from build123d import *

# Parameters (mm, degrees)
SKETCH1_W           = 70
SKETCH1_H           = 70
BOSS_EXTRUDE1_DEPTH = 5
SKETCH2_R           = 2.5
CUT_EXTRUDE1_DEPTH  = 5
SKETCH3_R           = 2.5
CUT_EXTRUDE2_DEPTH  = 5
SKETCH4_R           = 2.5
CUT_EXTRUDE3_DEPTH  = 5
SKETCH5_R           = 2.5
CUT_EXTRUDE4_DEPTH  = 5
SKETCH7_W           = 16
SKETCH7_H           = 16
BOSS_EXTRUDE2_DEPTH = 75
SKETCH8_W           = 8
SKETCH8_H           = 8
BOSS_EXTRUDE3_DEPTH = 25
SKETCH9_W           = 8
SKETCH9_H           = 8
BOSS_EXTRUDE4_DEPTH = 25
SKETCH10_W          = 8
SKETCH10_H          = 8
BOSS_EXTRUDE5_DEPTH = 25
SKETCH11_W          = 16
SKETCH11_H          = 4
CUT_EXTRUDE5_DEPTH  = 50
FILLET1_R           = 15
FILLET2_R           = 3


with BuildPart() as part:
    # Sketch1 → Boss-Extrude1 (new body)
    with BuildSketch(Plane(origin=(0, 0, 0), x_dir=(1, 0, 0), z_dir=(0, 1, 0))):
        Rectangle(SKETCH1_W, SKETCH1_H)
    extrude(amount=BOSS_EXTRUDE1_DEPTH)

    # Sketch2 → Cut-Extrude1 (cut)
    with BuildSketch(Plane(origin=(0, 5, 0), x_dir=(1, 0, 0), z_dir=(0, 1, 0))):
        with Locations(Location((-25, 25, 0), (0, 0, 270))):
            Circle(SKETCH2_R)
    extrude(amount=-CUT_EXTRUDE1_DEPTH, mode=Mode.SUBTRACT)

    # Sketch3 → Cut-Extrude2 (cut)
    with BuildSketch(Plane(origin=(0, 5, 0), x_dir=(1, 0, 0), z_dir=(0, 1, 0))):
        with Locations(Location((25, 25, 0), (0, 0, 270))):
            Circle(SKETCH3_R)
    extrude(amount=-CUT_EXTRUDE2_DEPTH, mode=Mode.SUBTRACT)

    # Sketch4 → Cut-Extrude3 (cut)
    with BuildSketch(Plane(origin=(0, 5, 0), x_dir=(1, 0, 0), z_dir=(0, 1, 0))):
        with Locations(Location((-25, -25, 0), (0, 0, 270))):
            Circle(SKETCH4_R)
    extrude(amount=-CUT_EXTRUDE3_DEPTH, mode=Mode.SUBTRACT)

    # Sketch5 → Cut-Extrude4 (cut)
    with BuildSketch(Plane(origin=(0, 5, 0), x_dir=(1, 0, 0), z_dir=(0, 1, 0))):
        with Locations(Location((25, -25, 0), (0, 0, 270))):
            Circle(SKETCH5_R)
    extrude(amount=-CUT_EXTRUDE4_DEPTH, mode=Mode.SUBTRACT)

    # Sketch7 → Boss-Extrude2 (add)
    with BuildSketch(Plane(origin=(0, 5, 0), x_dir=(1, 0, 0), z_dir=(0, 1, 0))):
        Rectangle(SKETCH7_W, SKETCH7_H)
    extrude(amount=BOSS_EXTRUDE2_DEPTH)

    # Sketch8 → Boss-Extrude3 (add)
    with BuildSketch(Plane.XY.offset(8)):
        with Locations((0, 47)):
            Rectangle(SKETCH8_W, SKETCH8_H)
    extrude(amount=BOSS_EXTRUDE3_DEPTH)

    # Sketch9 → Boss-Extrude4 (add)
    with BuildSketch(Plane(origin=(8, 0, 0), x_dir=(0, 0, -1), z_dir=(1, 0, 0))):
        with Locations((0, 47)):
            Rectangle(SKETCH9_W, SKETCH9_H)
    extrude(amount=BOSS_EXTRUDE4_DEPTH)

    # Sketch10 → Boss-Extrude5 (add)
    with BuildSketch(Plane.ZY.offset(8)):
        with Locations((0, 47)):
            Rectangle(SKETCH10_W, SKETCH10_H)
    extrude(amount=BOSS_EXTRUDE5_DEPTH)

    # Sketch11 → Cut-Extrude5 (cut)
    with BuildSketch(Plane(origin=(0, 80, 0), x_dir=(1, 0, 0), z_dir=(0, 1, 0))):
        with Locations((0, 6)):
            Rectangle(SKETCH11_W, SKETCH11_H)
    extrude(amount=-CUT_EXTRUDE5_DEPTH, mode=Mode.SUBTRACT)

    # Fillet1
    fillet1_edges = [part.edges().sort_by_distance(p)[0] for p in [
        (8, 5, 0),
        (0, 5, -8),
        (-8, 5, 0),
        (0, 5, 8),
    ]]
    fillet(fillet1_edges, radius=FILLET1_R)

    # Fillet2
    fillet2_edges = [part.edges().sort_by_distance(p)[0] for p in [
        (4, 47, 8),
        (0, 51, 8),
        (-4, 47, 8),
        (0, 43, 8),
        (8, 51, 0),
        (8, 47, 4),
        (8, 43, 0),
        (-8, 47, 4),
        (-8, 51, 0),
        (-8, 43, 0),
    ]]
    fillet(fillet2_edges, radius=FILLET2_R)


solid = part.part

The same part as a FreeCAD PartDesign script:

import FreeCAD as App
import Part
import Sketcher

V = App.Vector
Q = App.Units.Quantity


def edges_at(feature, points):
    """Names of the edges that pass closest to the given points."""
    edges = feature.Shape.Edges
    near = lambda p: min(range(len(edges)), key=lambda i: edges[i].distToShape(Part.Vertex(*p))[0])
    return sorted({f"Edge{near(p) + 1}" for p in points})


def add_polygon(sketch, points):
    """Adds a closed chain of lines whose ends are joined by coincident constraints."""
    first, n = sketch.GeometryCount, len(points)
    for a, b in zip(points, points[1:] + points[:1]):
        sketch.addGeometry(Part.LineSegment(App.Vector(*a, 0), App.Vector(*b, 0)), False)
    for i in range(n):
        sketch.addConstraint(Sketcher.Constraint("Coincident", first + i, 2, first + (i + 1) % n, 1))

doc = App.newDocument("Part")
body = doc.addObject("PartDesign::Body", "Body")

sketch1 = doc.addObject("Sketcher::SketchObject", "Sketch")
body.addObject(sketch1)
sketch1.AttachmentSupport = (doc.XZ_Plane, [""])
sketch1.MapMode = "FlatFace"
add_polygon(sketch1, [(-35, -35), (-35, 35), (35, 35), (35, -35)])
sketch1.addConstraint([
    Sketcher.Constraint("Vertical", 0),
    Sketcher.Constraint("Horizontal", 1),
    Sketcher.Constraint("Vertical", 2),
    Sketcher.Constraint("Horizontal", 3),
    Sketcher.Constraint("Symmetric", 0, 2, 2, 2, -1, 1),
    Sketcher.Constraint("Equal", 3, 0),
    Sketcher.Constraint("DistanceX", 1, 1, 1, 2, Q("70 mm")),
])
pad1 = doc.addObject("PartDesign::Pad", "Pad")
body.addObject(pad1)
pad1.Profile = sketch1
pad1.Length = 5
pad1.Reversed = True

sketch2 = doc.addObject("Sketcher::SketchObject", "Sketch001")
body.addObject(sketch2)
sketch2.AttachmentSupport = (doc.XZ_Plane, [""])
sketch2.MapMode = "FlatFace"
sketch2.AttachmentOffset = App.Placement(V(0, 0, -5), App.Rotation())
sketch2.addGeometry(Part.Circle(V(-25, -25, 0), V(0, 0, 1), 2.5), False)
sketch2.addConstraint([
    Sketcher.Constraint("Diameter", 0, Q("5 mm")),
    Sketcher.Constraint("DistanceX", 0, 3, -1, 1, Q("25 mm")),
    Sketcher.Constraint("DistanceY", 0, 3, -1, 1, Q("25 mm")),
])
pocket1 = doc.addObject("PartDesign::Pocket", "Pocket")
body.addObject(pocket1)
pocket1.Profile = sketch2
pocket1.Length = 5
pocket1.Reversed = True

sketch3 = doc.addObject("Sketcher::SketchObject", "Sketch002")
body.addObject(sketch3)
sketch3.AttachmentSupport = (doc.XZ_Plane, [""])
sketch3.MapMode = "FlatFace"
sketch3.AttachmentOffset = App.Placement(V(0, 0, -5), App.Rotation())
sketch3.addGeometry(Part.Circle(V(25, -25, 0), V(0, 0, 1), 2.5), False)
sketch3.addConstraint([
    Sketcher.Constraint("Diameter", 0, Q("5 mm")),
    Sketcher.Constraint("DistanceX", -1, 1, 0, 3, Q("25 mm")),
    Sketcher.Constraint("DistanceY", 0, 3, -1, 1, Q("25 mm")),
])
pocket2 = doc.addObject("PartDesign::Pocket", "Pocket001")
body.addObject(pocket2)
pocket2.Profile = sketch3
pocket2.Length = 5
pocket2.Reversed = True

sketch4 = doc.addObject("Sketcher::SketchObject", "Sketch003")
body.addObject(sketch4)
sketch4.AttachmentSupport = (doc.XZ_Plane, [""])
sketch4.MapMode = "FlatFace"
sketch4.AttachmentOffset = App.Placement(V(0, 0, -5), App.Rotation())
sketch4.addGeometry(Part.Circle(V(-25, 25, 0), V(0, 0, 1), 2.5), False)
sketch4.addConstraint([
    Sketcher.Constraint("Diameter", 0, Q("5 mm")),
    Sketcher.Constraint("DistanceX", 0, 3, -1, 1, Q("25 mm")),
    Sketcher.Constraint("DistanceY", -1, 1, 0, 3, Q("25 mm")),
])
pocket3 = doc.addObject("PartDesign::Pocket", "Pocket002")
body.addObject(pocket3)
pocket3.Profile = sketch4
pocket3.Length = 5
pocket3.Reversed = True

sketch5 = doc.addObject("Sketcher::SketchObject", "Sketch004")
body.addObject(sketch5)
sketch5.AttachmentSupport = (doc.XZ_Plane, [""])
sketch5.MapMode = "FlatFace"
sketch5.AttachmentOffset = App.Placement(V(0, 0, -5), App.Rotation())
sketch5.addGeometry(Part.Circle(V(25, 25, 0), V(0, 0, 1), 2.5), False)
sketch5.addConstraint([
    Sketcher.Constraint("Diameter", 0, Q("5 mm")),
    Sketcher.Constraint("DistanceX", -1, 1, 0, 3, Q("25 mm")),
    Sketcher.Constraint("DistanceY", -1, 1, 0, 3, Q("25 mm")),
])
pocket4 = doc.addObject("PartDesign::Pocket", "Pocket003")
body.addObject(pocket4)
pocket4.Profile = sketch5
pocket4.Length = 5
pocket4.Reversed = True

sketch6 = doc.addObject("Sketcher::SketchObject", "Sketch005")
body.addObject(sketch6)
sketch6.AttachmentSupport = (doc.XZ_Plane, [""])
sketch6.MapMode = "FlatFace"
sketch6.AttachmentOffset = App.Placement(V(0, 0, -5), App.Rotation())
add_polygon(sketch6, [(-8, -8), (-8, 8), (8, 8), (8, -8)])
sketch6.addConstraint([
    Sketcher.Constraint("Vertical", 0),
    Sketcher.Constraint("Horizontal", 1),
    Sketcher.Constraint("Vertical", 2),
    Sketcher.Constraint("Horizontal", 3),
    Sketcher.Constraint("Symmetric", 0, 2, 2, 2, -1, 1),
    Sketcher.Constraint("Equal", 3, 0),
    Sketcher.Constraint("DistanceX", 1, 1, 1, 2, Q("16 mm")),
])
pad2 = doc.addObject("PartDesign::Pad", "Pad001")
body.addObject(pad2)
pad2.Profile = sketch6
pad2.Length = 75
pad2.Reversed = True

sketch7 = doc.addObject("Sketcher::SketchObject", "Sketch006")
body.addObject(sketch7)
sketch7.AttachmentSupport = (doc.XY_Plane, [""])
sketch7.MapMode = "FlatFace"
sketch7.AttachmentOffset = App.Placement(V(0, 0, 8), App.Rotation())
add_polygon(sketch7, [(-4, 51), (-4, 43), (4, 43), (4, 51)])
sketch7.addConstraint([
    Sketcher.Constraint("Vertical", 0),
    Sketcher.Constraint("Horizontal", 1),
    Sketcher.Constraint("Vertical", 2),
    Sketcher.Constraint("Horizontal", 3),
    Sketcher.Constraint("Equal", 3, 0),
    Sketcher.Constraint("DistanceX", 1, 1, 1, 2, Q("8 mm")),
    Sketcher.Constraint("DistanceX", 0, 2, -1, 1, Q("4 mm")),
    Sketcher.Constraint("DistanceY", -1, 1, 0, 2, Q("43 mm")),
])
pad3 = doc.addObject("PartDesign::Pad", "Pad002")
body.addObject(pad3)
pad3.Profile = sketch7
pad3.Length = 25

sketch8 = doc.addObject("Sketcher::SketchObject", "Sketch007")
body.addObject(sketch8)
sketch8.AttachmentSupport = (doc.YZ_Plane, [""])
sketch8.MapMode = "FlatFace"
sketch8.AttachmentOffset = App.Placement(V(0, 0, 8), App.Rotation())
add_polygon(sketch8, [(51, 4), (43, 4), (43, -4), (51, -4)])
sketch8.addConstraint([
    Sketcher.Constraint("Horizontal", 0),
    Sketcher.Constraint("Vertical", 1),
    Sketcher.Constraint("Horizontal", 2),
    Sketcher.Constraint("Vertical", 3),
    Sketcher.Constraint("Equal", 2, 1),
    Sketcher.Constraint("DistanceX", 0, 2, 0, 1, Q("8 mm")),
    Sketcher.Constraint("DistanceX", -1, 1, 0, 2, Q("43 mm")),
    Sketcher.Constraint("DistanceY", -1, 1, 0, 2, Q("4 mm")),
])
pad4 = doc.addObject("PartDesign::Pad", "Pad003")
body.addObject(pad4)
pad4.Profile = sketch8
pad4.Length = 25

sketch9 = doc.addObject("Sketcher::SketchObject", "Sketch008")
body.addObject(sketch9)
sketch9.AttachmentSupport = (doc.YZ_Plane, [""])
sketch9.MapMode = "FlatFace"
sketch9.AttachmentOffset = App.Placement(V(0, 0, -8), App.Rotation())
add_polygon(sketch9, [(51, -4), (43, -4), (43, 4), (51, 4)])
sketch9.addConstraint([
    Sketcher.Constraint("Horizontal", 0),
    Sketcher.Constraint("Vertical", 1),
    Sketcher.Constraint("Horizontal", 2),
    Sketcher.Constraint("Vertical", 3),
    Sketcher.Constraint("Equal", 2, 1),
    Sketcher.Constraint("DistanceX", 0, 2, 0, 1, Q("8 mm")),
    Sketcher.Constraint("DistanceX", -1, 1, 0, 2, Q("43 mm")),
    Sketcher.Constraint("DistanceY", 0, 2, -1, 1, Q("4 mm")),
])
pad5 = doc.addObject("PartDesign::Pad", "Pad004")
body.addObject(pad5)
pad5.Profile = sketch9
pad5.Length = 25
pad5.Reversed = True

sketch10 = doc.addObject("Sketcher::SketchObject", "Sketch009")
body.addObject(sketch10)
sketch10.AttachmentSupport = (doc.XZ_Plane, [""])
sketch10.MapMode = "FlatFace"
sketch10.AttachmentOffset = App.Placement(V(0, 0, -80), App.Rotation())
add_polygon(sketch10, [(-8, -8), (-8, -4), (8, -4), (8, -8)])
sketch10.addConstraint([
    Sketcher.Constraint("Vertical", 0),
    Sketcher.Constraint("Horizontal", 1),
    Sketcher.Constraint("Vertical", 2),
    Sketcher.Constraint("Horizontal", 3),
    Sketcher.Constraint("DistanceX", 1, 1, 1, 2, Q("16 mm")),
    Sketcher.Constraint("DistanceY", 0, 1, 0, 2, Q("4 mm")),
    Sketcher.Constraint("DistanceX", 0, 2, -1, 1, Q("8 mm")),
    Sketcher.Constraint("DistanceY", 0, 2, -1, 1, Q("4 mm")),
])
pocket5 = doc.addObject("PartDesign::Pocket", "Pocket004")
body.addObject(pocket5)
pocket5.Profile = sketch10
pocket5.Length = 50
pocket5.Reversed = True
doc.recompute()

fillet = doc.addObject("PartDesign::Fillet", "Fillet")
body.addObject(fillet)
fillet.Base = (pocket5, edges_at(pocket5, [
    (8, 5, 0),
    (0, 5, -8),
    (-8, 5, 0),
    (0, 5, 8),
]))
fillet.Radius = 15
doc.recompute()

fillet2 = doc.addObject("PartDesign::Fillet", "Fillet001")
body.addObject(fillet2)
fillet2.Base = (fillet, edges_at(fillet, [
    (4, 47, 8),
    (0, 51, 8),
    (-4, 47, 8),
    (0, 43, 8),
    (8, 51, 0),
    (8, 47, 4),
    (8, 43, 0),
    (-8, 47, 4),
    (-8, 51, 0),
    (-8, 43, 0),
]))
fillet2.Radius = 3

doc.recompute()
